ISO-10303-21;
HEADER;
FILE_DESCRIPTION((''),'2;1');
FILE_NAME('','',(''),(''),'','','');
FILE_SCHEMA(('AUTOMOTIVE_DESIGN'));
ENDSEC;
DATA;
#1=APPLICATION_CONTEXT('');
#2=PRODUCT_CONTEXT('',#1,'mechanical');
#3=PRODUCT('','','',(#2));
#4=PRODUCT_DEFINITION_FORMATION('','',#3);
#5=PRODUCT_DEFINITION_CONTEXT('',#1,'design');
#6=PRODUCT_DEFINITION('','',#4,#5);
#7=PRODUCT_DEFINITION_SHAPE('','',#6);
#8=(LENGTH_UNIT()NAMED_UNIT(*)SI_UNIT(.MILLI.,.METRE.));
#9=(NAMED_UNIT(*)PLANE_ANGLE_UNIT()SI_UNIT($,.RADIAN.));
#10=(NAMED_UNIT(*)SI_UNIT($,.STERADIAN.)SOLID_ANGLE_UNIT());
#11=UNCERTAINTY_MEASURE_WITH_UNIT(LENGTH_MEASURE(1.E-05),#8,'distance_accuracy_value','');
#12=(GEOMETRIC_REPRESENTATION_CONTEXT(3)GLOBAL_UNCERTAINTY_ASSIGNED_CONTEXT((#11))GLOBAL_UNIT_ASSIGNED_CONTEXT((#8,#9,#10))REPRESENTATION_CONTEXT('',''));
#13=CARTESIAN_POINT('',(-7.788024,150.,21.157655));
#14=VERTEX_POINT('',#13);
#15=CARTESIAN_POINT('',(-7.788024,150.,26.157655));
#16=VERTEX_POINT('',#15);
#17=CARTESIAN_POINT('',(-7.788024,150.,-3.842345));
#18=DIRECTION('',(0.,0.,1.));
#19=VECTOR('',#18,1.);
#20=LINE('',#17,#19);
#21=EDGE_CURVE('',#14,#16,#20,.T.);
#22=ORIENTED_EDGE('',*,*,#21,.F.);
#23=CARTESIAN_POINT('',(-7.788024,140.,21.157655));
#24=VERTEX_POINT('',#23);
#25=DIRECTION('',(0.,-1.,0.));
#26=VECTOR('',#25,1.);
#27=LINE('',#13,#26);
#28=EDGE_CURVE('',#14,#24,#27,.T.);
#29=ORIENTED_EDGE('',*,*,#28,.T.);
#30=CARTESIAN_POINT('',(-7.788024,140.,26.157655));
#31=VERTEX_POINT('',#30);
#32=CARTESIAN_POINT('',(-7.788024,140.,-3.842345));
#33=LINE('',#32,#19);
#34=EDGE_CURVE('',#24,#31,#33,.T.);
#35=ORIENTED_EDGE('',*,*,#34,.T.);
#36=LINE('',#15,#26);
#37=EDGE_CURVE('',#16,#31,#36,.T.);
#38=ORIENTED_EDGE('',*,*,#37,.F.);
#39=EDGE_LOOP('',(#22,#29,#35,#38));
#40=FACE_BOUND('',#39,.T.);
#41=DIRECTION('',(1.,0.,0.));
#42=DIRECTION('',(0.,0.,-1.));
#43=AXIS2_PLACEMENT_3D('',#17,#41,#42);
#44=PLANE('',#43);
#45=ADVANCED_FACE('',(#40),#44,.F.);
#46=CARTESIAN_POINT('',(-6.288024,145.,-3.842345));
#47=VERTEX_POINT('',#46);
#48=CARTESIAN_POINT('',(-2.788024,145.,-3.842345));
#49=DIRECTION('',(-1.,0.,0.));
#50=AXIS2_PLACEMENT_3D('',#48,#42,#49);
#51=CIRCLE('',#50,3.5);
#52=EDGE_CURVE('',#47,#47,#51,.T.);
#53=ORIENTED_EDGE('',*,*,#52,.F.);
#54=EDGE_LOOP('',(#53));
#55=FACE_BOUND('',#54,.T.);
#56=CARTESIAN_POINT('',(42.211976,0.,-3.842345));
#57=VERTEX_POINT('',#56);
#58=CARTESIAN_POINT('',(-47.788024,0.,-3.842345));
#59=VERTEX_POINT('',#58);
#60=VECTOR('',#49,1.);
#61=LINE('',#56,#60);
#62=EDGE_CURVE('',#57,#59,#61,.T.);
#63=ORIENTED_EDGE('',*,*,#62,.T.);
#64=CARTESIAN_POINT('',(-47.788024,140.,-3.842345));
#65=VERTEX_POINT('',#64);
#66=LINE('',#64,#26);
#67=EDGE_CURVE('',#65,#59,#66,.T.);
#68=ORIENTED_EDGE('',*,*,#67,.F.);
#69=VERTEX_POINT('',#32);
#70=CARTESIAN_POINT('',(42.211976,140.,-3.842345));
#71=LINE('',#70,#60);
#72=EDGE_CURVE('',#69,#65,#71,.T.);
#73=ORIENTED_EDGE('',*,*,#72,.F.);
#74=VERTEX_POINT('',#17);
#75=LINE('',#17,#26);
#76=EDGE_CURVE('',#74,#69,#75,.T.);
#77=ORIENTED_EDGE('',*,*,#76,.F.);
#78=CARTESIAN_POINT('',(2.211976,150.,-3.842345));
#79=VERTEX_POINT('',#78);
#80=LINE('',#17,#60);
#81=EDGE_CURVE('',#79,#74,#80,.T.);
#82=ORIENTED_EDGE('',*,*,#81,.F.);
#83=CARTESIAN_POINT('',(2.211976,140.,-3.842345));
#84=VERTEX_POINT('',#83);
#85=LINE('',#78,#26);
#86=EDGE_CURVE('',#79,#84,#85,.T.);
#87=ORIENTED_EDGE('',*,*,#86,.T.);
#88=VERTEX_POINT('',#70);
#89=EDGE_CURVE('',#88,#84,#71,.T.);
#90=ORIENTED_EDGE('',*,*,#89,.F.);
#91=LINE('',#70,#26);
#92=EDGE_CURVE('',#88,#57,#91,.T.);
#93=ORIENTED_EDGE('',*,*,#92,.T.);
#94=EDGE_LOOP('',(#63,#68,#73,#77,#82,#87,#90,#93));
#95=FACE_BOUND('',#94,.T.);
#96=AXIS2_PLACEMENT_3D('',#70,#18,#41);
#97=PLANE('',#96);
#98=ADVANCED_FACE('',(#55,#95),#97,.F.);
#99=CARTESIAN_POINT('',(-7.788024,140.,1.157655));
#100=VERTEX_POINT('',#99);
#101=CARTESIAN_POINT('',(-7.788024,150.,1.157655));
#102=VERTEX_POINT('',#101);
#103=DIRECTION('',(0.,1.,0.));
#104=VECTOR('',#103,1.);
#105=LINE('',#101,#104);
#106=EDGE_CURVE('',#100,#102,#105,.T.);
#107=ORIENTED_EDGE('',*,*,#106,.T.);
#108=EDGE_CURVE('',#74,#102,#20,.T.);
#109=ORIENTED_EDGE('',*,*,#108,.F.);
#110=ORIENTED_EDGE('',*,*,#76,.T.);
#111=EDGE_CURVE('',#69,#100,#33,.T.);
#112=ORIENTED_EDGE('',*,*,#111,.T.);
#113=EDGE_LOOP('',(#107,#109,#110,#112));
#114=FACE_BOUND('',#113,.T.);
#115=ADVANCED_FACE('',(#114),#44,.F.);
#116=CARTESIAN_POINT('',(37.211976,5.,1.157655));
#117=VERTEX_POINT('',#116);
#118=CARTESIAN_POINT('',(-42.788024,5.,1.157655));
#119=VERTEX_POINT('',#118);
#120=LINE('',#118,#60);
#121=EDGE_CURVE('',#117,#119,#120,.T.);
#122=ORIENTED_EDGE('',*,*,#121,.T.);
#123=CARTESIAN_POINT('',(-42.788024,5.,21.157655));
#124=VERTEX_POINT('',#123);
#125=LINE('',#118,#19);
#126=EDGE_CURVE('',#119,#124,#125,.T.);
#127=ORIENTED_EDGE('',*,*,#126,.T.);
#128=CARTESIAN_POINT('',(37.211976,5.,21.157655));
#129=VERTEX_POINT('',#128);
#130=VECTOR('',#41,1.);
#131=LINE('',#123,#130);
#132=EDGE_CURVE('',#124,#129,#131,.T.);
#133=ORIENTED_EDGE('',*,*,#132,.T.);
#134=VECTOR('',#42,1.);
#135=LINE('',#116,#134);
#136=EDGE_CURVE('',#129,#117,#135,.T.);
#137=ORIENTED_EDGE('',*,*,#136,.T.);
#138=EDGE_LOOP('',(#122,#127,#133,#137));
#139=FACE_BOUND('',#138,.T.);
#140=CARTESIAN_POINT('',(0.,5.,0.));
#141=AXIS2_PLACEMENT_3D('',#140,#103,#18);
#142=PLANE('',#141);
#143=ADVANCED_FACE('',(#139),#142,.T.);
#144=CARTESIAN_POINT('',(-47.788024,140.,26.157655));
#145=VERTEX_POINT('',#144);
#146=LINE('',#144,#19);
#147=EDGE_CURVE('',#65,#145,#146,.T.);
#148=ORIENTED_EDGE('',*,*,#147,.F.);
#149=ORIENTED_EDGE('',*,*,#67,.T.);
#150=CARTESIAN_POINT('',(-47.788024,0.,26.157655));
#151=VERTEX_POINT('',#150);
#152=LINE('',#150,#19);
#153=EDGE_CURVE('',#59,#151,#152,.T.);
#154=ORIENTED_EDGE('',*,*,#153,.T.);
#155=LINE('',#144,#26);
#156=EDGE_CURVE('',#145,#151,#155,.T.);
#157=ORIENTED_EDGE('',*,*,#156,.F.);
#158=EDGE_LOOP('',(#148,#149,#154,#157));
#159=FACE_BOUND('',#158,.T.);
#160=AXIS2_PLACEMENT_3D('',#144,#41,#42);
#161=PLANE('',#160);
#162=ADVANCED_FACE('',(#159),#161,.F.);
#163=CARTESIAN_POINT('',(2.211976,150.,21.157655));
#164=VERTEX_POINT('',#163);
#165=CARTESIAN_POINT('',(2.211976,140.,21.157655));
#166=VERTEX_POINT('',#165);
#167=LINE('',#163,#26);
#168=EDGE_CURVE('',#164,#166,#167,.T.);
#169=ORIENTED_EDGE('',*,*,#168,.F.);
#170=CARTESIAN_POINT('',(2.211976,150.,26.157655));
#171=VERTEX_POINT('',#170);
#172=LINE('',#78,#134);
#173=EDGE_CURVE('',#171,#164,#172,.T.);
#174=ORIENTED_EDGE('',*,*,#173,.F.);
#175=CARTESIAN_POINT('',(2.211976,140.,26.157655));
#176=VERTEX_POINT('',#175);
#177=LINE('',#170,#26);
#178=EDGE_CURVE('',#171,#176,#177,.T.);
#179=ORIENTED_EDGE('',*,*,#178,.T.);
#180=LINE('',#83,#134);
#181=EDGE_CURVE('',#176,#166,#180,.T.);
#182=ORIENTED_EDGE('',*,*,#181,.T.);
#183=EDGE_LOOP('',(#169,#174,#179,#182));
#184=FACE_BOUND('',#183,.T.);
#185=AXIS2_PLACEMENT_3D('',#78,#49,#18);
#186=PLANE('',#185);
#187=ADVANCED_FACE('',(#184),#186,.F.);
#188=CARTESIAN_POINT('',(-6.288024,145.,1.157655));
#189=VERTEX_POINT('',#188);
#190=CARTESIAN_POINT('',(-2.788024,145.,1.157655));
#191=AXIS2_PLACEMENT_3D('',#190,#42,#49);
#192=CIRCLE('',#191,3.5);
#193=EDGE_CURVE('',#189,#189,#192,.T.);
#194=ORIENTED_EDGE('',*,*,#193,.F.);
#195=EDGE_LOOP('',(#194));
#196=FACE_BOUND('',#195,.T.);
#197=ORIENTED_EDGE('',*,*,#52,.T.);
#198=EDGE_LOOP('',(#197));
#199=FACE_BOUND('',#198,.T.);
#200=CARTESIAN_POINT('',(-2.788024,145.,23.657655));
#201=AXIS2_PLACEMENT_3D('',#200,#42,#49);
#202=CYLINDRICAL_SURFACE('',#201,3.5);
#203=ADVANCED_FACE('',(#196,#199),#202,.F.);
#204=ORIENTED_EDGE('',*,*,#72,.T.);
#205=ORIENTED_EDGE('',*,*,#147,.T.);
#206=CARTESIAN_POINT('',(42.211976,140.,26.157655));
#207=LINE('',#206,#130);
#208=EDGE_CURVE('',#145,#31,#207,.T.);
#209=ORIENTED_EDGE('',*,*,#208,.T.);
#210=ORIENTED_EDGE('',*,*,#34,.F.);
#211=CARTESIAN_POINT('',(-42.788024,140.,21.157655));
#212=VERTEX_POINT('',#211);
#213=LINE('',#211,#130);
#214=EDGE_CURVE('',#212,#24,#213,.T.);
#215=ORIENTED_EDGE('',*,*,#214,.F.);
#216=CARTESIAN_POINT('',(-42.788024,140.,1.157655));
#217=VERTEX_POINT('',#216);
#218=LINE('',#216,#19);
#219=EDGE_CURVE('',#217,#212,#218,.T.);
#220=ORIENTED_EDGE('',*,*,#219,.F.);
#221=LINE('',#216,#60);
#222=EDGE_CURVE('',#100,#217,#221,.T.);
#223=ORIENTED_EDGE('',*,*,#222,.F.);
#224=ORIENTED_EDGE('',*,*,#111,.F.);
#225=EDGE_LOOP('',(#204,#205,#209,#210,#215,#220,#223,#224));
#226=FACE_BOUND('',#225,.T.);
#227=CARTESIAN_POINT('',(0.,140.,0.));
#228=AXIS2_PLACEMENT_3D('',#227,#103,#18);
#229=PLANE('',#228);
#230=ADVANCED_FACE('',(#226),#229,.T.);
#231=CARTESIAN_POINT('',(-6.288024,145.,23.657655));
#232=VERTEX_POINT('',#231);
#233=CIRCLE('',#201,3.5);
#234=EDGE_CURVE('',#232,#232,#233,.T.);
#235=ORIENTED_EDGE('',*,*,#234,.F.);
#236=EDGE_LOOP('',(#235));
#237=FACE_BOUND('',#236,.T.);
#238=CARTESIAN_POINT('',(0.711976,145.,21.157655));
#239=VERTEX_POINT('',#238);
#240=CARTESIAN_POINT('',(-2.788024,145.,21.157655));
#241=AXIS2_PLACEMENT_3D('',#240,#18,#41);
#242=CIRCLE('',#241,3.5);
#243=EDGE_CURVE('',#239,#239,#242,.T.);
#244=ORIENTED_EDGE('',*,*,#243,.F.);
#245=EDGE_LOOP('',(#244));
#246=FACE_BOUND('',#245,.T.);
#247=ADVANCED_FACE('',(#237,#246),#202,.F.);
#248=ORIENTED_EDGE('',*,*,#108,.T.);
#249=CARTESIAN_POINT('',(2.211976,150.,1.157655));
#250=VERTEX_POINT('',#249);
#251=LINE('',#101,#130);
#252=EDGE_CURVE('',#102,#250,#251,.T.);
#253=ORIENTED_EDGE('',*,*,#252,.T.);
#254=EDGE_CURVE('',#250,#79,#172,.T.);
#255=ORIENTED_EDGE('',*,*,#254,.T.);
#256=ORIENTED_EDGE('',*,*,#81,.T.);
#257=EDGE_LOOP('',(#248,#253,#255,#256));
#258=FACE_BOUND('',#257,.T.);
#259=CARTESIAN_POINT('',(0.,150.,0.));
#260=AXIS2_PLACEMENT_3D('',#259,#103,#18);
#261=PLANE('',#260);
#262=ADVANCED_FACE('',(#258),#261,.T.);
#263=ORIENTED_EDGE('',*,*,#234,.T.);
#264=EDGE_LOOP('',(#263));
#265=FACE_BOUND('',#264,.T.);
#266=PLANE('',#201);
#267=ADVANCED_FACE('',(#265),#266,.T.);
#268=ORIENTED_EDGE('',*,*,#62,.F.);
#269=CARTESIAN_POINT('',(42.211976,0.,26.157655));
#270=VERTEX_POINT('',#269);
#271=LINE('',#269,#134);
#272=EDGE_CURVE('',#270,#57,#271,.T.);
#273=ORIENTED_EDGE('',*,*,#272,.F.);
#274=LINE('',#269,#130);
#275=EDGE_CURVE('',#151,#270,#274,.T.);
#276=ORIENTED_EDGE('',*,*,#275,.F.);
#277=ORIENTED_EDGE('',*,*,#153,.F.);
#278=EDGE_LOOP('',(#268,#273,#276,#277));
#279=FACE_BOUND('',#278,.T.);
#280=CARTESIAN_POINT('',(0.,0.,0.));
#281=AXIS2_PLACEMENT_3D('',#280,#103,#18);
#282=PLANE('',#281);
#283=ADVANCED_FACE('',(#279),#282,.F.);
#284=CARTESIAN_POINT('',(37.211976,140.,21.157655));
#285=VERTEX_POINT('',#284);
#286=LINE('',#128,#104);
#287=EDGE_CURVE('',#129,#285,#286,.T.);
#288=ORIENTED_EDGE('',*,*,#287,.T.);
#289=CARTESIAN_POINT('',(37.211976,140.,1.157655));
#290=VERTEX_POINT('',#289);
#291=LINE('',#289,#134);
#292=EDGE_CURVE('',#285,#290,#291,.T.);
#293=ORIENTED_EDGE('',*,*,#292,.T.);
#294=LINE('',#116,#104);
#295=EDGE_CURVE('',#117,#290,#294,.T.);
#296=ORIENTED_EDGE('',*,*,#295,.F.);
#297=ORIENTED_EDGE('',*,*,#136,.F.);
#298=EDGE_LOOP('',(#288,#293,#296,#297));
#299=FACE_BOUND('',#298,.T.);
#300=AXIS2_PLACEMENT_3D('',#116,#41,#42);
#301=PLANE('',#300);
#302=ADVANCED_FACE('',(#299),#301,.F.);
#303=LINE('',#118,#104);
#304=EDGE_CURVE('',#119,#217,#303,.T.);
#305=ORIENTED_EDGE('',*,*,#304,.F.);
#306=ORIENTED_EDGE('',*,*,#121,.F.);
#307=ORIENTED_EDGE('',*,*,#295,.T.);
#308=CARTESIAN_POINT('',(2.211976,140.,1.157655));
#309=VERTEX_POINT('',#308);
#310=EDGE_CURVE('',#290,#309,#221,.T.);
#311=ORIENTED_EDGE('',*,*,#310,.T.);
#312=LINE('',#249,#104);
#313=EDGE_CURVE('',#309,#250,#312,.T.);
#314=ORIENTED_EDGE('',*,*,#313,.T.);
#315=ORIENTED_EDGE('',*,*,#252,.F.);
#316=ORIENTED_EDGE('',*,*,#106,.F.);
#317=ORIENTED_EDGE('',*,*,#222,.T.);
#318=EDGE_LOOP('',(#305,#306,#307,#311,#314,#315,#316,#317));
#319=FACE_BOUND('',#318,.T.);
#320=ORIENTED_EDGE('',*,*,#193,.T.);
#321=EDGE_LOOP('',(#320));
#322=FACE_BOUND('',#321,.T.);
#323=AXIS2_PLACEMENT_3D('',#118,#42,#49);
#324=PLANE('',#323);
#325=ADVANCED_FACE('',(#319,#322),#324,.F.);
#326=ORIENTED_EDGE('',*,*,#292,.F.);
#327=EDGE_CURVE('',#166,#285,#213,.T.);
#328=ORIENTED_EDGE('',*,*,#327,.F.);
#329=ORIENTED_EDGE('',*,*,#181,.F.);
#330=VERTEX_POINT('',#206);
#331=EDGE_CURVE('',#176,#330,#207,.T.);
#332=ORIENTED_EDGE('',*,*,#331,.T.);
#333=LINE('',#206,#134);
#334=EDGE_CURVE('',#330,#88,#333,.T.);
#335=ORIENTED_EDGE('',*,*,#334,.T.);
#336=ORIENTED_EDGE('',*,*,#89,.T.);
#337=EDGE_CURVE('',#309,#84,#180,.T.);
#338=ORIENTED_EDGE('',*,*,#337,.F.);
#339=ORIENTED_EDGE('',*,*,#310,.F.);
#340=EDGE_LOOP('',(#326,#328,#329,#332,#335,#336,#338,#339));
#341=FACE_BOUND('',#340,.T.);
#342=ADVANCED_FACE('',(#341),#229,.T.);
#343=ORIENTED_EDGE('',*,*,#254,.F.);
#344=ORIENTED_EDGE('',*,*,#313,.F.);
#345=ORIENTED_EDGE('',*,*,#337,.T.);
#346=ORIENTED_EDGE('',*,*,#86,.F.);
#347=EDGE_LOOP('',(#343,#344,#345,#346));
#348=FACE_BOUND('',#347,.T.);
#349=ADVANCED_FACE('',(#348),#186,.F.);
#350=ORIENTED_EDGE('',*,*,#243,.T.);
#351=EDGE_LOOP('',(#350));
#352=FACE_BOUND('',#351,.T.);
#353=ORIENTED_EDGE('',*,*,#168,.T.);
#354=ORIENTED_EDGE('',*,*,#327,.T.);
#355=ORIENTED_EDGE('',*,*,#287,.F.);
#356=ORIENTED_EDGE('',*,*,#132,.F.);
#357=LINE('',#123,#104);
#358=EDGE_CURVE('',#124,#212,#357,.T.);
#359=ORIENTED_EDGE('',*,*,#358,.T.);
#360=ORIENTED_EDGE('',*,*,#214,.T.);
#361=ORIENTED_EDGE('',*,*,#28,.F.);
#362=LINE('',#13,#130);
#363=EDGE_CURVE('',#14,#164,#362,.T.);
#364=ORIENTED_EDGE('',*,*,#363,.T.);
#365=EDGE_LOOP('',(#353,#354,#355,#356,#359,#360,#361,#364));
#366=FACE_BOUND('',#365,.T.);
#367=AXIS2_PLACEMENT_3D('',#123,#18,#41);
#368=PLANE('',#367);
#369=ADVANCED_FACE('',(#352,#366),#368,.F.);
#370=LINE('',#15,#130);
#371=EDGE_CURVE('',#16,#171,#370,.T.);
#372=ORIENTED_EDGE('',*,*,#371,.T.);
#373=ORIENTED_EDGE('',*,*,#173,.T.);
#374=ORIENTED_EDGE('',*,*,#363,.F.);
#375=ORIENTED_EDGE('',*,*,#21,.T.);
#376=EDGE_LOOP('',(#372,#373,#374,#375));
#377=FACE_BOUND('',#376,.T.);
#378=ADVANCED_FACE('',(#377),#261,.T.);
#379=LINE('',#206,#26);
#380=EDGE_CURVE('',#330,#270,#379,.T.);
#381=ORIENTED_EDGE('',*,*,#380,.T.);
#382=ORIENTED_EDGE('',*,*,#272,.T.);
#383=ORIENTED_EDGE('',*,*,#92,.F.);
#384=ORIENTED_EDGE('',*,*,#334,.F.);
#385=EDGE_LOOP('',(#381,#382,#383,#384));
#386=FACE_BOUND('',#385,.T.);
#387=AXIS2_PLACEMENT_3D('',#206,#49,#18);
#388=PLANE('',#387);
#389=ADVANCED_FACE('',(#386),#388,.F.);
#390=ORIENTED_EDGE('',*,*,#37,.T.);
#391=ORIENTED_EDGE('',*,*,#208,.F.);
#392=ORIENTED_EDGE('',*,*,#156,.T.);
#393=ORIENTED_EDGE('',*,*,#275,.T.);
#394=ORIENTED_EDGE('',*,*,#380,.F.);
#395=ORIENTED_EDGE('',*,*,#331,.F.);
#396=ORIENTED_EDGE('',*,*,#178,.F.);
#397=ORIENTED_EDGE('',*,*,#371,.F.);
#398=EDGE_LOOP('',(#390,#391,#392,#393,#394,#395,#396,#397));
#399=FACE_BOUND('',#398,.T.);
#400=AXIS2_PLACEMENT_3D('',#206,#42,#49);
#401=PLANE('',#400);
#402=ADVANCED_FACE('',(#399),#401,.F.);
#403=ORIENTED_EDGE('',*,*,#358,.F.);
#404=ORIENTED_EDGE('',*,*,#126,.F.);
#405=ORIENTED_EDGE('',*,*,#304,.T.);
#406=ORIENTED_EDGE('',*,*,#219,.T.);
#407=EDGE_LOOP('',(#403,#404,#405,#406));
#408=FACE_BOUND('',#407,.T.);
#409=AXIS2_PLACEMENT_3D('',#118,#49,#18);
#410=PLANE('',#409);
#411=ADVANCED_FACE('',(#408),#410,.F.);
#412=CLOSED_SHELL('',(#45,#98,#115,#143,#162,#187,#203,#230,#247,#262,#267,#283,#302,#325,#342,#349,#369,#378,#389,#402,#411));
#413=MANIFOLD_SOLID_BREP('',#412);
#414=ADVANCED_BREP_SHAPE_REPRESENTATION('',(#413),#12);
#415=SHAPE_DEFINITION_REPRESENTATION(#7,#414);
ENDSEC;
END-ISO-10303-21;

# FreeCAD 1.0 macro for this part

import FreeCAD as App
import Part
import Sketcher

V = App.Vector
Q = App.Units.Quantity

doc = App.newDocument("Part")
body = doc.addObject("PartDesign::Body", "Body")

# Sketch on XZ plane
sketch1 = body.newObject("Sketcher::SketchObject", "Sketch")
sketch1.AttachmentSupport = (doc.getObject("XZ_Plane"), [""])
sketch1.MapMode = "FlatFace"
sketch1.addGeometry([
    Part.LineSegment(V(-48, -4, 0), V(-48, 26, 0)),
    Part.LineSegment(V(-48, 26, 0), V(42, 26, 0)),
    Part.LineSegment(V(42, 26, 0), V(42, -4, 0)),
    Part.LineSegment(V(42, -4, 0), V(-48, -4, 0)),
], False)
sketch1.addConstraint([
    Sketcher.Constraint("Coincident", 0, 2, 1, 1),
    Sketcher.Constraint("Coincident", 1, 2, 2, 1),
    Sketcher.Constraint("Coincident", 2, 2, 3, 1),
    Sketcher.Constraint("Coincident", 3, 2, 0, 1),
    Sketcher.Constraint("Vertical", 0),
    Sketcher.Constraint("Horizontal", 1),
    Sketcher.Constraint("Vertical", 2),
    Sketcher.Constraint("Horizontal", 3),
    Sketcher.Constraint("DistanceX", 1, 1, 1, 2, Q("90 mm")),
    Sketcher.Constraint("DistanceY", 0, 1, 0, 2, Q("30 mm")),
    Sketcher.Constraint("DistanceX", 0, 2, -1, 1, Q("47.788024 mm")),
    Sketcher.Constraint("DistanceY", -1, 1, 0, 2, Q("26.157655 mm")),
])
pad1 = body.newObject("PartDesign::Pad", "Pad")
pad1.Profile = sketch1
pad1.Length = 140
pad1.Reversed = True

# Sketch on XZ plane
sketch2 = body.newObject("Sketcher::SketchObject", "Sketch001")
sketch2.AttachmentSupport = (doc.getObject("XZ_Plane"), [""])
sketch2.MapMode = "FlatFace"
sketch2.AttachmentOffset = App.Placement(V(0, 0, -140), App.Rotation())
sketch2.addGeometry([
    Part.LineSegment(V(-43, 1, 0), V(-43, 21, 0)),
    Part.LineSegment(V(-43, 21, 0), V(37, 21, 0)),
    Part.LineSegment(V(37, 21, 0), V(37, 1, 0)),
    Part.LineSegment(V(37, 1, 0), V(-43, 1, 0)),
], False)
sketch2.addConstraint([
    Sketcher.Constraint("Coincident", 0, 2, 1, 1),
    Sketcher.Constraint("Coincident", 1, 2, 2, 1),
    Sketcher.Constraint("Coincident", 2, 2, 3, 1),
    Sketcher.Constraint("Coincident", 3, 2, 0, 1),
    Sketcher.Constraint("Vertical", 0),
    Sketcher.Constraint("Horizontal", 1),
    Sketcher.Constraint("Vertical", 2),
    Sketcher.Constraint("Horizontal", 3),
    Sketcher.Constraint("DistanceX", 1, 1, 1, 2, Q("80 mm")),
    Sketcher.Constraint("DistanceY", 0, 1, 0, 2, Q("20 mm")),
    Sketcher.Constraint("DistanceX", 0, 2, -1, 1, Q("42.788024 mm")),
    Sketcher.Constraint("DistanceY", -1, 1, 0, 2, Q("21.157655 mm")),
])
pocket1 = body.newObject("PartDesign::Pocket", "Pocket")
pocket1.Profile = sketch2
pocket1.Length = 135
pocket1.Reversed = True

# Sketch on XZ plane
sketch3 = body.newObject("Sketcher::SketchObject", "Sketch002")
sketch3.AttachmentSupport = (doc.getObject("XZ_Plane"), [""])
sketch3.MapMode = "FlatFace"
sketch3.AttachmentOffset = App.Placement(V(0, 0, -140), App.Rotation())
sketch3.addGeometry([
    Part.LineSegment(V(-8, -4, 0), V(-8, 26, 0)),
    Part.LineSegment(V(-8, 26, 0), V(2, 26, 0)),
    Part.LineSegment(V(2, 26, 0), V(2, -4, 0)),
    Part.LineSegment(V(2, -4, 0), V(-8, -4, 0)),
], False)
sketch3.addConstraint([
    Sketcher.Constraint("Coincident", 0, 2, 1, 1),
    Sketcher.Constraint("Coincident", 1, 2, 2, 1),
    Sketcher.Constraint("Coincident", 2, 2, 3, 1),
    Sketcher.Constraint("Coincident", 3, 2, 0, 1),
    Sketcher.Constraint("Vertical", 0),
    Sketcher.Constraint("Horizontal", 1),
    Sketcher.Constraint("Vertical", 2),
    Sketcher.Constraint("Horizontal", 3),
    Sketcher.Constraint("DistanceX", 1, 1, 1, 2, Q("10 mm")),
    Sketcher.Constraint("DistanceY", 0, 1, 0, 2, Q("30 mm")),
    Sketcher.Constraint("DistanceX", 0, 2, -1, 1, Q("7.788024 mm")),
    Sketcher.Constraint("DistanceY", -1, 1, 0, 2, Q("26.157655 mm")),
])
pad2 = body.newObject("PartDesign::Pad", "Pad001")
pad2.Profile = sketch3
pad2.Length = 10
pad2.Reversed = True

# Sketch on YZ plane
sketch4 = body.newObject("Sketcher::SketchObject", "Sketch003")
sketch4.AttachmentSupport = (doc.getObject("YZ_Plane"), [""])
sketch4.MapMode = "FlatFace"
sketch4.AttachmentOffset = App.Placement(V(0, 0, 2.211976), App.Rotation())
sketch4.addGeometry([
    Part.LineSegment(V(150, 21, 0), V(140, 21, 0)),
    Part.LineSegment(V(140, 21, 0), V(140, 1, 0)),
    Part.LineSegment(V(140, 1, 0), V(150, 1, 0)),
    Part.LineSegment(V(150, 1, 0), V(150, 21, 0)),
], False)
sketch4.addConstraint([
    Sketcher.Constraint("Coincident", 0, 2, 1, 1),
    Sketcher.Constraint("Coincident", 1, 2, 2, 1),
    Sketcher.Constraint("Coincident", 2, 2, 3, 1),
    Sketcher.Constraint("Coincident", 3, 2, 0, 1),
    Sketcher.Constraint("Horizontal", 0),
    Sketcher.Constraint("Vertical", 1),
    Sketcher.Constraint("Horizontal", 2),
    Sketcher.Constraint("Vertical", 3),
    Sketcher.Constraint("DistanceX", 0, 2, 0, 1, Q("10 mm")),
    Sketcher.Constraint("DistanceY", 1, 2, 1, 1, Q("20 mm")),
    Sketcher.Constraint("DistanceX", -1, 1, 0, 2, Q("140 mm")),
    Sketcher.Constraint("DistanceY", -1, 1, 0, 2, Q("21.157655 mm")),
])
pocket2 = body.newObject("PartDesign::Pocket", "Pocket001")
pocket2.Profile = sketch4
pocket2.Length = 10

# Sketch on XY plane
sketch5 = body.newObject("Sketcher::SketchObject", "Sketch004")
sketch5.AttachmentSupport = (doc.getObject("XY_Plane"), [""])
sketch5.MapMode = "FlatFace"
sketch5.AttachmentOffset = App.Placement(V(0, 0, -3.842345), App.Rotation())
sketch5.addGeometry(Part.Circle(V(-2.8, 145, 0), V(0, 0, 1), 3.5), False)
sketch5.addConstraint([
    Sketcher.Constraint("Diameter", 0, Q("7 mm")),
    Sketcher.Constraint("DistanceY", -1, 1, 0, 3, Q("145 mm")),
    Sketcher.Constraint("DistanceX", 0, 3, -1, 1, Q("2.788024 mm")),
])
pocket3 = body.newObject("PartDesign::Pocket", "Pocket002")
pocket3.Profile = sketch5
pocket3.Length = 27.5
pocket3.Reversed = True

doc.recompute()
